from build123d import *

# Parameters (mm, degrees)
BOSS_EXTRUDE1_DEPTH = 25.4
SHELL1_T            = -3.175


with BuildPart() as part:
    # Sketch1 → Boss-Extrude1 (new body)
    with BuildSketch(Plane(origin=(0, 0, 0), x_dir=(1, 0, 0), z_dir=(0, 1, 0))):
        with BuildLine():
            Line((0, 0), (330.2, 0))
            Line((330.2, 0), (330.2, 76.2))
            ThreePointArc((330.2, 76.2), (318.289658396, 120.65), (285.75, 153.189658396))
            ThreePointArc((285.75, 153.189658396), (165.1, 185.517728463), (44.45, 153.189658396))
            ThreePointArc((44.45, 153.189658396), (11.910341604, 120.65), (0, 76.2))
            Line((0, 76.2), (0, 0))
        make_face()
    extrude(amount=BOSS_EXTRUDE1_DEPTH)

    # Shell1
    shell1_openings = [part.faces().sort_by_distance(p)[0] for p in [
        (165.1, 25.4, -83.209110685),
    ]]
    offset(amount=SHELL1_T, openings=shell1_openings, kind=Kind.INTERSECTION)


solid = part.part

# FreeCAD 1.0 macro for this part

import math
import FreeCAD as App
import Part
import Sketcher
from FreeCAD import Vector
Q = App.Units.Quantity


def faces_at(feature, points):
    """Names of the faces that lie closest to the given points."""
    faces = feature.Shape.Faces
    near = lambda p: min(range(len(faces)), key=lambda i: faces[i].distToShape(Part.Vertex(*p))[0])
    return sorted({f"Face{near(p) + 1}" for p in points})

doc = App.newDocument("Part")
body = doc.addObject("PartDesign::Body", "Body")

# Sketch on XZ plane
sketch1 = body.newObject("Sketcher::SketchObject", "Sketch")
sketch1.AttachmentSupport = (doc.getObject("XZ_Plane"), [""])
sketch1.MapMode = "FlatFace"
sketch1.addGeometry(Part.LineSegment(Vector(0, 0, 0), Vector(330.2, 0, 0)), False)
sketch1.addGeometry(Part.LineSegment(Vector(330.2, 0, 0), Vector(330.2, -76.2, 0)), False)
sketch1.addGeometry(Part.ArcOfCircle(Part.Circle(Vector(241.3, -76.2, 0), Vector(0, 0, 1), 88.9), math.radians(-60), math.radians(0)), False)
sketch1.addGeometry(Part.ArcOfCircle(Part.Circle(Vector(165.1, 55.782272, 0), Vector(0, 0, 1), 241.3), math.radians(-120), math.radians(-60)), False)
sketch1.addGeometry(Part.ArcOfCircle(Part.Circle(Vector(88.9, -76.2, 0), Vector(0, 0, 1), 88.9), math.radians(-180), math.radians(-120)), False)
sketch1.addGeometry(Part.LineSegment(Vector(0, -76.2, 0), Vector(0, 0, 0)), False)
sketch1.addConstraint(Sketcher.Constraint("Coincident", 0, 2, 1, 1))
sketch1.addConstraint(Sketcher.Constraint("Tangent", 1, 2, 2, 2))
sketch1.addConstraint(Sketcher.Constraint("Tangent", 2, 1, 3, 2))
sketch1.addConstraint(Sketcher.Constraint("Tangent", 3, 1, 4, 2))
sketch1.addConstraint(Sketcher.Constraint("Tangent", 4, 1, 5, 1))
sketch1.addConstraint(Sketcher.Constraint("Coincident", 5, 2, 0, 1))
sketch1.addConstraint(Sketcher.Constraint("Horizontal", 0))
sketch1.addConstraint(Sketcher.Constraint("Vertical", 1))
sketch1.addConstraint(Sketcher.Constraint("Vertical", 5))
sketch1.addConstraint(Sketcher.Constraint("Coincident", 5, 2, -1, 1))
sketch1.addConstraint(Sketcher.Constraint("Equal", 2, 4))
sketch1.addConstraint(Sketcher.Constraint("Horizontal", 2, 3, 4, 3))
sketch1.addConstraint(Sketcher.Constraint("Radius", 2, Q("3.5 in")))
sketch1.addConstraint(Sketcher.Constraint("Radius", 3, Q("9.5 in")))
sketch1.addConstraint(Sketcher.Constraint("DistanceX", 0, 1, 0, 2, Q("13 in")))
sketch1.addConstraint(Sketcher.Constraint("DistanceY", 1, 2, 1, 1, Q("3 in")))
pad1 = body.newObject("PartDesign::Pad", "Pad")
pad1.Profile = sketch1
pad1.Length = Q("1 in")
pad1.Reversed = True
doc.recompute()

thickness = body.newObject("PartDesign::Thickness", "Thickness")
thickness.Base = (pad1, faces_at(pad1, [(165.1, 25.4, -92.759)]))
thickness.Value = Q("0.125 in")
thickness.Reversed = True
thickness.Join = "Intersection"

doc.recompute()
